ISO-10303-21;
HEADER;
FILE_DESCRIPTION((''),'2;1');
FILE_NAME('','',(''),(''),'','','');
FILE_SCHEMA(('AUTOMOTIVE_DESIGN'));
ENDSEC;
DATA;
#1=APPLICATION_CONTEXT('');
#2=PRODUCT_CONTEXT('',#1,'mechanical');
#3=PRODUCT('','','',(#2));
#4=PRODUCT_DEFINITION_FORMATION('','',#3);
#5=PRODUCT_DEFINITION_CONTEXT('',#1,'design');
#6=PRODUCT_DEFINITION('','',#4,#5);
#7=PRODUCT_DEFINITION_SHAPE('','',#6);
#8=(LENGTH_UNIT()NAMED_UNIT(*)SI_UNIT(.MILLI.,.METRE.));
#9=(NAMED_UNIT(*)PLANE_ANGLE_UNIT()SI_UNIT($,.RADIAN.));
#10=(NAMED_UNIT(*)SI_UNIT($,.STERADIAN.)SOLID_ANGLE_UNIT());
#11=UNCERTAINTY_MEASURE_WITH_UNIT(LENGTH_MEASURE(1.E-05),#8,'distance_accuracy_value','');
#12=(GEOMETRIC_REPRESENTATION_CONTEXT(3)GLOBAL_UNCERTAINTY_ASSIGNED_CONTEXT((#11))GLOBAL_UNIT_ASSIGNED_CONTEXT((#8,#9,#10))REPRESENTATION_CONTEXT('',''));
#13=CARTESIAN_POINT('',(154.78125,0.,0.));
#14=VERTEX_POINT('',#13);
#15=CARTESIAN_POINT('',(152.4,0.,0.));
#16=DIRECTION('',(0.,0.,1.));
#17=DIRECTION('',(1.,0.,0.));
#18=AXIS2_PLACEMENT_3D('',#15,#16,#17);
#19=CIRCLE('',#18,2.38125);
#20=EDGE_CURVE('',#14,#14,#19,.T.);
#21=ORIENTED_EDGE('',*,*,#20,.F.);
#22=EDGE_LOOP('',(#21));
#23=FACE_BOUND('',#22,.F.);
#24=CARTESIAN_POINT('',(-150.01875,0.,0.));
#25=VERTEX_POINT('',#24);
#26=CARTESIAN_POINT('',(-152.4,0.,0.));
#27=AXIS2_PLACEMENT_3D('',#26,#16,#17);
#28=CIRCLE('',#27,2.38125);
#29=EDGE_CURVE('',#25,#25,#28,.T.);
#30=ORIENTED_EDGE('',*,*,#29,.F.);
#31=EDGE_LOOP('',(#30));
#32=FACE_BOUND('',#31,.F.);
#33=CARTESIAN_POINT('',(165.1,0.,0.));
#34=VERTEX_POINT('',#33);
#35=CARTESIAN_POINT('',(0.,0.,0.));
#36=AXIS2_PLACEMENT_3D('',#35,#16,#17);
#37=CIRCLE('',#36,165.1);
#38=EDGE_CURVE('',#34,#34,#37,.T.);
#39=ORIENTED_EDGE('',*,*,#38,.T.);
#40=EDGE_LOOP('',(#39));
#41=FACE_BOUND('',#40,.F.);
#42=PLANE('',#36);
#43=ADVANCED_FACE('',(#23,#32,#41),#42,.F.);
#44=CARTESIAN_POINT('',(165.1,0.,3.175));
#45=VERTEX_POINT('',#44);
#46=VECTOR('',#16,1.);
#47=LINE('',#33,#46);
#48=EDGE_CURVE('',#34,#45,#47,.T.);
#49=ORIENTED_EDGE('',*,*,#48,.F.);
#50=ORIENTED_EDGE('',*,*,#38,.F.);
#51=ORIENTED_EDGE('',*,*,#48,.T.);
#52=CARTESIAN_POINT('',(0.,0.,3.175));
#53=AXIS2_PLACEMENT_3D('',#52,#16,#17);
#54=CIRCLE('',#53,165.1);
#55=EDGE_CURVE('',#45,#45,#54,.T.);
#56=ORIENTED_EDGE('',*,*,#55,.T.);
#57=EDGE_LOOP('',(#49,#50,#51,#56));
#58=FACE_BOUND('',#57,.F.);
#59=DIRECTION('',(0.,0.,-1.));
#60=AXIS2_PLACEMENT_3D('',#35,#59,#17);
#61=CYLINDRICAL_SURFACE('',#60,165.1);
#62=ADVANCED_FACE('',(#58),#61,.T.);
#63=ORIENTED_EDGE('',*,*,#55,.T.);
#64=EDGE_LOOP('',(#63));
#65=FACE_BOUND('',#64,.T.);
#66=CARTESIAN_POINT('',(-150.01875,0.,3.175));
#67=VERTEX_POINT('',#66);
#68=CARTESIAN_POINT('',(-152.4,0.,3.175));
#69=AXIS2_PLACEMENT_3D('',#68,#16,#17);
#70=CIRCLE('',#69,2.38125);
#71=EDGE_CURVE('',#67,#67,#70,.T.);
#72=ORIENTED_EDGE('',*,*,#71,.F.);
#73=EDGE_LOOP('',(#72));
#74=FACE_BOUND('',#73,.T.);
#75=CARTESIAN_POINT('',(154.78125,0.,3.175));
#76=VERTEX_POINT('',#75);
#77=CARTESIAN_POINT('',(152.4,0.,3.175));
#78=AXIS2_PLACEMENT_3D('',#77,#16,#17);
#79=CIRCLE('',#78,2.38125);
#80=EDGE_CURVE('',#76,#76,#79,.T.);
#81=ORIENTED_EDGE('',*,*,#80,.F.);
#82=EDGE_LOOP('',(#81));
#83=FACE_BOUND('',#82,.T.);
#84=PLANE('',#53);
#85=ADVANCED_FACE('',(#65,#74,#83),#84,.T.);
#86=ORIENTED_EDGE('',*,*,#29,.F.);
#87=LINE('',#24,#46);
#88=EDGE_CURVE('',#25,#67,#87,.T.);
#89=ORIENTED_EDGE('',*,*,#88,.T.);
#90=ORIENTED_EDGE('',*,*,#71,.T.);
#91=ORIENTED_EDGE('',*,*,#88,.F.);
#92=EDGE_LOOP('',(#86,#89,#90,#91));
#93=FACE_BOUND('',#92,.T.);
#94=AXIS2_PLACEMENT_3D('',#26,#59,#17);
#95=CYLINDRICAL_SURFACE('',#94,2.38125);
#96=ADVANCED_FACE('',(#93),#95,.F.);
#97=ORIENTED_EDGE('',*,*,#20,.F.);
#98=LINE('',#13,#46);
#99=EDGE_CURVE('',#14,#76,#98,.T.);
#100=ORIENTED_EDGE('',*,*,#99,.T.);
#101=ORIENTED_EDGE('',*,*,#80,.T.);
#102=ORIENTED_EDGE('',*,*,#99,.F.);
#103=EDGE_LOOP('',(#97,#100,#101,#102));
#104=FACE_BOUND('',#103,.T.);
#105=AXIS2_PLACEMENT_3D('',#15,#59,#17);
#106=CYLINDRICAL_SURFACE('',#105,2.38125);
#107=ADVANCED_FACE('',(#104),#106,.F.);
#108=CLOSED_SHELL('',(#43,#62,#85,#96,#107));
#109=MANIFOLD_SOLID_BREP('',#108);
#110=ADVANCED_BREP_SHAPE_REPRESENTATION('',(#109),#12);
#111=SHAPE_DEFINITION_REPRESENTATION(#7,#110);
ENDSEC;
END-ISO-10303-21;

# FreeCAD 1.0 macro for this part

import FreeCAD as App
import Part
import Sketcher
Q = App.Units.Quantity

doc = App.newDocument("Part")
body = doc.addObject("PartDesign::Body", "Body")

sketch1 = body.newObject("Sketcher::SketchObject", "Sketch")
sketch1.AttachmentSupport = (doc.getObject("XY_Plane"), [""])
sketch1.MapMode = "FlatFace"
sketch1.addGeometry(Part.Circle(App.Vector(0, 0, 0), App.Vector(0, 0, 1), 165.1), False)
sketch1.addGeometry(Part.Circle(App.Vector(-152.4, 0, 0), App.Vector(0, 0, 1), 2.38125), False)
sketch1.addGeometry(Part.Circle(App.Vector(152.4, 0, 0), App.Vector(0, 0, 1), 2.38125), False)
sketch1.addConstraint(Sketcher.Constraint("Coincident", 0, 3, -1, 1))
sketch1.addConstraint(Sketcher.Constraint("Equal", 1, 2))
sketch1.addConstraint(Sketcher.Constraint("Symmetric", 1, 3, 2, 3, -1, 1))
sketch1.addConstraint(Sketcher.Constraint("PointOnObject", 1, 3, -1))
sketch1.addConstraint(Sketcher.Constraint("Diameter", 0, Q("13 in")))
sketch1.addConstraint(Sketcher.Constraint("Diameter", 1, Q("0.1875 in")))
sketch1.addConstraint(Sketcher.Constraint("DistanceX", 1, 3, -1, 1, Q("6 in")))
pad1 = body.newObject("PartDesign::Pad", "Pad")
pad1.Profile = sketch1
pad1.Length = Q("0.125 in")

doc.recompute()
